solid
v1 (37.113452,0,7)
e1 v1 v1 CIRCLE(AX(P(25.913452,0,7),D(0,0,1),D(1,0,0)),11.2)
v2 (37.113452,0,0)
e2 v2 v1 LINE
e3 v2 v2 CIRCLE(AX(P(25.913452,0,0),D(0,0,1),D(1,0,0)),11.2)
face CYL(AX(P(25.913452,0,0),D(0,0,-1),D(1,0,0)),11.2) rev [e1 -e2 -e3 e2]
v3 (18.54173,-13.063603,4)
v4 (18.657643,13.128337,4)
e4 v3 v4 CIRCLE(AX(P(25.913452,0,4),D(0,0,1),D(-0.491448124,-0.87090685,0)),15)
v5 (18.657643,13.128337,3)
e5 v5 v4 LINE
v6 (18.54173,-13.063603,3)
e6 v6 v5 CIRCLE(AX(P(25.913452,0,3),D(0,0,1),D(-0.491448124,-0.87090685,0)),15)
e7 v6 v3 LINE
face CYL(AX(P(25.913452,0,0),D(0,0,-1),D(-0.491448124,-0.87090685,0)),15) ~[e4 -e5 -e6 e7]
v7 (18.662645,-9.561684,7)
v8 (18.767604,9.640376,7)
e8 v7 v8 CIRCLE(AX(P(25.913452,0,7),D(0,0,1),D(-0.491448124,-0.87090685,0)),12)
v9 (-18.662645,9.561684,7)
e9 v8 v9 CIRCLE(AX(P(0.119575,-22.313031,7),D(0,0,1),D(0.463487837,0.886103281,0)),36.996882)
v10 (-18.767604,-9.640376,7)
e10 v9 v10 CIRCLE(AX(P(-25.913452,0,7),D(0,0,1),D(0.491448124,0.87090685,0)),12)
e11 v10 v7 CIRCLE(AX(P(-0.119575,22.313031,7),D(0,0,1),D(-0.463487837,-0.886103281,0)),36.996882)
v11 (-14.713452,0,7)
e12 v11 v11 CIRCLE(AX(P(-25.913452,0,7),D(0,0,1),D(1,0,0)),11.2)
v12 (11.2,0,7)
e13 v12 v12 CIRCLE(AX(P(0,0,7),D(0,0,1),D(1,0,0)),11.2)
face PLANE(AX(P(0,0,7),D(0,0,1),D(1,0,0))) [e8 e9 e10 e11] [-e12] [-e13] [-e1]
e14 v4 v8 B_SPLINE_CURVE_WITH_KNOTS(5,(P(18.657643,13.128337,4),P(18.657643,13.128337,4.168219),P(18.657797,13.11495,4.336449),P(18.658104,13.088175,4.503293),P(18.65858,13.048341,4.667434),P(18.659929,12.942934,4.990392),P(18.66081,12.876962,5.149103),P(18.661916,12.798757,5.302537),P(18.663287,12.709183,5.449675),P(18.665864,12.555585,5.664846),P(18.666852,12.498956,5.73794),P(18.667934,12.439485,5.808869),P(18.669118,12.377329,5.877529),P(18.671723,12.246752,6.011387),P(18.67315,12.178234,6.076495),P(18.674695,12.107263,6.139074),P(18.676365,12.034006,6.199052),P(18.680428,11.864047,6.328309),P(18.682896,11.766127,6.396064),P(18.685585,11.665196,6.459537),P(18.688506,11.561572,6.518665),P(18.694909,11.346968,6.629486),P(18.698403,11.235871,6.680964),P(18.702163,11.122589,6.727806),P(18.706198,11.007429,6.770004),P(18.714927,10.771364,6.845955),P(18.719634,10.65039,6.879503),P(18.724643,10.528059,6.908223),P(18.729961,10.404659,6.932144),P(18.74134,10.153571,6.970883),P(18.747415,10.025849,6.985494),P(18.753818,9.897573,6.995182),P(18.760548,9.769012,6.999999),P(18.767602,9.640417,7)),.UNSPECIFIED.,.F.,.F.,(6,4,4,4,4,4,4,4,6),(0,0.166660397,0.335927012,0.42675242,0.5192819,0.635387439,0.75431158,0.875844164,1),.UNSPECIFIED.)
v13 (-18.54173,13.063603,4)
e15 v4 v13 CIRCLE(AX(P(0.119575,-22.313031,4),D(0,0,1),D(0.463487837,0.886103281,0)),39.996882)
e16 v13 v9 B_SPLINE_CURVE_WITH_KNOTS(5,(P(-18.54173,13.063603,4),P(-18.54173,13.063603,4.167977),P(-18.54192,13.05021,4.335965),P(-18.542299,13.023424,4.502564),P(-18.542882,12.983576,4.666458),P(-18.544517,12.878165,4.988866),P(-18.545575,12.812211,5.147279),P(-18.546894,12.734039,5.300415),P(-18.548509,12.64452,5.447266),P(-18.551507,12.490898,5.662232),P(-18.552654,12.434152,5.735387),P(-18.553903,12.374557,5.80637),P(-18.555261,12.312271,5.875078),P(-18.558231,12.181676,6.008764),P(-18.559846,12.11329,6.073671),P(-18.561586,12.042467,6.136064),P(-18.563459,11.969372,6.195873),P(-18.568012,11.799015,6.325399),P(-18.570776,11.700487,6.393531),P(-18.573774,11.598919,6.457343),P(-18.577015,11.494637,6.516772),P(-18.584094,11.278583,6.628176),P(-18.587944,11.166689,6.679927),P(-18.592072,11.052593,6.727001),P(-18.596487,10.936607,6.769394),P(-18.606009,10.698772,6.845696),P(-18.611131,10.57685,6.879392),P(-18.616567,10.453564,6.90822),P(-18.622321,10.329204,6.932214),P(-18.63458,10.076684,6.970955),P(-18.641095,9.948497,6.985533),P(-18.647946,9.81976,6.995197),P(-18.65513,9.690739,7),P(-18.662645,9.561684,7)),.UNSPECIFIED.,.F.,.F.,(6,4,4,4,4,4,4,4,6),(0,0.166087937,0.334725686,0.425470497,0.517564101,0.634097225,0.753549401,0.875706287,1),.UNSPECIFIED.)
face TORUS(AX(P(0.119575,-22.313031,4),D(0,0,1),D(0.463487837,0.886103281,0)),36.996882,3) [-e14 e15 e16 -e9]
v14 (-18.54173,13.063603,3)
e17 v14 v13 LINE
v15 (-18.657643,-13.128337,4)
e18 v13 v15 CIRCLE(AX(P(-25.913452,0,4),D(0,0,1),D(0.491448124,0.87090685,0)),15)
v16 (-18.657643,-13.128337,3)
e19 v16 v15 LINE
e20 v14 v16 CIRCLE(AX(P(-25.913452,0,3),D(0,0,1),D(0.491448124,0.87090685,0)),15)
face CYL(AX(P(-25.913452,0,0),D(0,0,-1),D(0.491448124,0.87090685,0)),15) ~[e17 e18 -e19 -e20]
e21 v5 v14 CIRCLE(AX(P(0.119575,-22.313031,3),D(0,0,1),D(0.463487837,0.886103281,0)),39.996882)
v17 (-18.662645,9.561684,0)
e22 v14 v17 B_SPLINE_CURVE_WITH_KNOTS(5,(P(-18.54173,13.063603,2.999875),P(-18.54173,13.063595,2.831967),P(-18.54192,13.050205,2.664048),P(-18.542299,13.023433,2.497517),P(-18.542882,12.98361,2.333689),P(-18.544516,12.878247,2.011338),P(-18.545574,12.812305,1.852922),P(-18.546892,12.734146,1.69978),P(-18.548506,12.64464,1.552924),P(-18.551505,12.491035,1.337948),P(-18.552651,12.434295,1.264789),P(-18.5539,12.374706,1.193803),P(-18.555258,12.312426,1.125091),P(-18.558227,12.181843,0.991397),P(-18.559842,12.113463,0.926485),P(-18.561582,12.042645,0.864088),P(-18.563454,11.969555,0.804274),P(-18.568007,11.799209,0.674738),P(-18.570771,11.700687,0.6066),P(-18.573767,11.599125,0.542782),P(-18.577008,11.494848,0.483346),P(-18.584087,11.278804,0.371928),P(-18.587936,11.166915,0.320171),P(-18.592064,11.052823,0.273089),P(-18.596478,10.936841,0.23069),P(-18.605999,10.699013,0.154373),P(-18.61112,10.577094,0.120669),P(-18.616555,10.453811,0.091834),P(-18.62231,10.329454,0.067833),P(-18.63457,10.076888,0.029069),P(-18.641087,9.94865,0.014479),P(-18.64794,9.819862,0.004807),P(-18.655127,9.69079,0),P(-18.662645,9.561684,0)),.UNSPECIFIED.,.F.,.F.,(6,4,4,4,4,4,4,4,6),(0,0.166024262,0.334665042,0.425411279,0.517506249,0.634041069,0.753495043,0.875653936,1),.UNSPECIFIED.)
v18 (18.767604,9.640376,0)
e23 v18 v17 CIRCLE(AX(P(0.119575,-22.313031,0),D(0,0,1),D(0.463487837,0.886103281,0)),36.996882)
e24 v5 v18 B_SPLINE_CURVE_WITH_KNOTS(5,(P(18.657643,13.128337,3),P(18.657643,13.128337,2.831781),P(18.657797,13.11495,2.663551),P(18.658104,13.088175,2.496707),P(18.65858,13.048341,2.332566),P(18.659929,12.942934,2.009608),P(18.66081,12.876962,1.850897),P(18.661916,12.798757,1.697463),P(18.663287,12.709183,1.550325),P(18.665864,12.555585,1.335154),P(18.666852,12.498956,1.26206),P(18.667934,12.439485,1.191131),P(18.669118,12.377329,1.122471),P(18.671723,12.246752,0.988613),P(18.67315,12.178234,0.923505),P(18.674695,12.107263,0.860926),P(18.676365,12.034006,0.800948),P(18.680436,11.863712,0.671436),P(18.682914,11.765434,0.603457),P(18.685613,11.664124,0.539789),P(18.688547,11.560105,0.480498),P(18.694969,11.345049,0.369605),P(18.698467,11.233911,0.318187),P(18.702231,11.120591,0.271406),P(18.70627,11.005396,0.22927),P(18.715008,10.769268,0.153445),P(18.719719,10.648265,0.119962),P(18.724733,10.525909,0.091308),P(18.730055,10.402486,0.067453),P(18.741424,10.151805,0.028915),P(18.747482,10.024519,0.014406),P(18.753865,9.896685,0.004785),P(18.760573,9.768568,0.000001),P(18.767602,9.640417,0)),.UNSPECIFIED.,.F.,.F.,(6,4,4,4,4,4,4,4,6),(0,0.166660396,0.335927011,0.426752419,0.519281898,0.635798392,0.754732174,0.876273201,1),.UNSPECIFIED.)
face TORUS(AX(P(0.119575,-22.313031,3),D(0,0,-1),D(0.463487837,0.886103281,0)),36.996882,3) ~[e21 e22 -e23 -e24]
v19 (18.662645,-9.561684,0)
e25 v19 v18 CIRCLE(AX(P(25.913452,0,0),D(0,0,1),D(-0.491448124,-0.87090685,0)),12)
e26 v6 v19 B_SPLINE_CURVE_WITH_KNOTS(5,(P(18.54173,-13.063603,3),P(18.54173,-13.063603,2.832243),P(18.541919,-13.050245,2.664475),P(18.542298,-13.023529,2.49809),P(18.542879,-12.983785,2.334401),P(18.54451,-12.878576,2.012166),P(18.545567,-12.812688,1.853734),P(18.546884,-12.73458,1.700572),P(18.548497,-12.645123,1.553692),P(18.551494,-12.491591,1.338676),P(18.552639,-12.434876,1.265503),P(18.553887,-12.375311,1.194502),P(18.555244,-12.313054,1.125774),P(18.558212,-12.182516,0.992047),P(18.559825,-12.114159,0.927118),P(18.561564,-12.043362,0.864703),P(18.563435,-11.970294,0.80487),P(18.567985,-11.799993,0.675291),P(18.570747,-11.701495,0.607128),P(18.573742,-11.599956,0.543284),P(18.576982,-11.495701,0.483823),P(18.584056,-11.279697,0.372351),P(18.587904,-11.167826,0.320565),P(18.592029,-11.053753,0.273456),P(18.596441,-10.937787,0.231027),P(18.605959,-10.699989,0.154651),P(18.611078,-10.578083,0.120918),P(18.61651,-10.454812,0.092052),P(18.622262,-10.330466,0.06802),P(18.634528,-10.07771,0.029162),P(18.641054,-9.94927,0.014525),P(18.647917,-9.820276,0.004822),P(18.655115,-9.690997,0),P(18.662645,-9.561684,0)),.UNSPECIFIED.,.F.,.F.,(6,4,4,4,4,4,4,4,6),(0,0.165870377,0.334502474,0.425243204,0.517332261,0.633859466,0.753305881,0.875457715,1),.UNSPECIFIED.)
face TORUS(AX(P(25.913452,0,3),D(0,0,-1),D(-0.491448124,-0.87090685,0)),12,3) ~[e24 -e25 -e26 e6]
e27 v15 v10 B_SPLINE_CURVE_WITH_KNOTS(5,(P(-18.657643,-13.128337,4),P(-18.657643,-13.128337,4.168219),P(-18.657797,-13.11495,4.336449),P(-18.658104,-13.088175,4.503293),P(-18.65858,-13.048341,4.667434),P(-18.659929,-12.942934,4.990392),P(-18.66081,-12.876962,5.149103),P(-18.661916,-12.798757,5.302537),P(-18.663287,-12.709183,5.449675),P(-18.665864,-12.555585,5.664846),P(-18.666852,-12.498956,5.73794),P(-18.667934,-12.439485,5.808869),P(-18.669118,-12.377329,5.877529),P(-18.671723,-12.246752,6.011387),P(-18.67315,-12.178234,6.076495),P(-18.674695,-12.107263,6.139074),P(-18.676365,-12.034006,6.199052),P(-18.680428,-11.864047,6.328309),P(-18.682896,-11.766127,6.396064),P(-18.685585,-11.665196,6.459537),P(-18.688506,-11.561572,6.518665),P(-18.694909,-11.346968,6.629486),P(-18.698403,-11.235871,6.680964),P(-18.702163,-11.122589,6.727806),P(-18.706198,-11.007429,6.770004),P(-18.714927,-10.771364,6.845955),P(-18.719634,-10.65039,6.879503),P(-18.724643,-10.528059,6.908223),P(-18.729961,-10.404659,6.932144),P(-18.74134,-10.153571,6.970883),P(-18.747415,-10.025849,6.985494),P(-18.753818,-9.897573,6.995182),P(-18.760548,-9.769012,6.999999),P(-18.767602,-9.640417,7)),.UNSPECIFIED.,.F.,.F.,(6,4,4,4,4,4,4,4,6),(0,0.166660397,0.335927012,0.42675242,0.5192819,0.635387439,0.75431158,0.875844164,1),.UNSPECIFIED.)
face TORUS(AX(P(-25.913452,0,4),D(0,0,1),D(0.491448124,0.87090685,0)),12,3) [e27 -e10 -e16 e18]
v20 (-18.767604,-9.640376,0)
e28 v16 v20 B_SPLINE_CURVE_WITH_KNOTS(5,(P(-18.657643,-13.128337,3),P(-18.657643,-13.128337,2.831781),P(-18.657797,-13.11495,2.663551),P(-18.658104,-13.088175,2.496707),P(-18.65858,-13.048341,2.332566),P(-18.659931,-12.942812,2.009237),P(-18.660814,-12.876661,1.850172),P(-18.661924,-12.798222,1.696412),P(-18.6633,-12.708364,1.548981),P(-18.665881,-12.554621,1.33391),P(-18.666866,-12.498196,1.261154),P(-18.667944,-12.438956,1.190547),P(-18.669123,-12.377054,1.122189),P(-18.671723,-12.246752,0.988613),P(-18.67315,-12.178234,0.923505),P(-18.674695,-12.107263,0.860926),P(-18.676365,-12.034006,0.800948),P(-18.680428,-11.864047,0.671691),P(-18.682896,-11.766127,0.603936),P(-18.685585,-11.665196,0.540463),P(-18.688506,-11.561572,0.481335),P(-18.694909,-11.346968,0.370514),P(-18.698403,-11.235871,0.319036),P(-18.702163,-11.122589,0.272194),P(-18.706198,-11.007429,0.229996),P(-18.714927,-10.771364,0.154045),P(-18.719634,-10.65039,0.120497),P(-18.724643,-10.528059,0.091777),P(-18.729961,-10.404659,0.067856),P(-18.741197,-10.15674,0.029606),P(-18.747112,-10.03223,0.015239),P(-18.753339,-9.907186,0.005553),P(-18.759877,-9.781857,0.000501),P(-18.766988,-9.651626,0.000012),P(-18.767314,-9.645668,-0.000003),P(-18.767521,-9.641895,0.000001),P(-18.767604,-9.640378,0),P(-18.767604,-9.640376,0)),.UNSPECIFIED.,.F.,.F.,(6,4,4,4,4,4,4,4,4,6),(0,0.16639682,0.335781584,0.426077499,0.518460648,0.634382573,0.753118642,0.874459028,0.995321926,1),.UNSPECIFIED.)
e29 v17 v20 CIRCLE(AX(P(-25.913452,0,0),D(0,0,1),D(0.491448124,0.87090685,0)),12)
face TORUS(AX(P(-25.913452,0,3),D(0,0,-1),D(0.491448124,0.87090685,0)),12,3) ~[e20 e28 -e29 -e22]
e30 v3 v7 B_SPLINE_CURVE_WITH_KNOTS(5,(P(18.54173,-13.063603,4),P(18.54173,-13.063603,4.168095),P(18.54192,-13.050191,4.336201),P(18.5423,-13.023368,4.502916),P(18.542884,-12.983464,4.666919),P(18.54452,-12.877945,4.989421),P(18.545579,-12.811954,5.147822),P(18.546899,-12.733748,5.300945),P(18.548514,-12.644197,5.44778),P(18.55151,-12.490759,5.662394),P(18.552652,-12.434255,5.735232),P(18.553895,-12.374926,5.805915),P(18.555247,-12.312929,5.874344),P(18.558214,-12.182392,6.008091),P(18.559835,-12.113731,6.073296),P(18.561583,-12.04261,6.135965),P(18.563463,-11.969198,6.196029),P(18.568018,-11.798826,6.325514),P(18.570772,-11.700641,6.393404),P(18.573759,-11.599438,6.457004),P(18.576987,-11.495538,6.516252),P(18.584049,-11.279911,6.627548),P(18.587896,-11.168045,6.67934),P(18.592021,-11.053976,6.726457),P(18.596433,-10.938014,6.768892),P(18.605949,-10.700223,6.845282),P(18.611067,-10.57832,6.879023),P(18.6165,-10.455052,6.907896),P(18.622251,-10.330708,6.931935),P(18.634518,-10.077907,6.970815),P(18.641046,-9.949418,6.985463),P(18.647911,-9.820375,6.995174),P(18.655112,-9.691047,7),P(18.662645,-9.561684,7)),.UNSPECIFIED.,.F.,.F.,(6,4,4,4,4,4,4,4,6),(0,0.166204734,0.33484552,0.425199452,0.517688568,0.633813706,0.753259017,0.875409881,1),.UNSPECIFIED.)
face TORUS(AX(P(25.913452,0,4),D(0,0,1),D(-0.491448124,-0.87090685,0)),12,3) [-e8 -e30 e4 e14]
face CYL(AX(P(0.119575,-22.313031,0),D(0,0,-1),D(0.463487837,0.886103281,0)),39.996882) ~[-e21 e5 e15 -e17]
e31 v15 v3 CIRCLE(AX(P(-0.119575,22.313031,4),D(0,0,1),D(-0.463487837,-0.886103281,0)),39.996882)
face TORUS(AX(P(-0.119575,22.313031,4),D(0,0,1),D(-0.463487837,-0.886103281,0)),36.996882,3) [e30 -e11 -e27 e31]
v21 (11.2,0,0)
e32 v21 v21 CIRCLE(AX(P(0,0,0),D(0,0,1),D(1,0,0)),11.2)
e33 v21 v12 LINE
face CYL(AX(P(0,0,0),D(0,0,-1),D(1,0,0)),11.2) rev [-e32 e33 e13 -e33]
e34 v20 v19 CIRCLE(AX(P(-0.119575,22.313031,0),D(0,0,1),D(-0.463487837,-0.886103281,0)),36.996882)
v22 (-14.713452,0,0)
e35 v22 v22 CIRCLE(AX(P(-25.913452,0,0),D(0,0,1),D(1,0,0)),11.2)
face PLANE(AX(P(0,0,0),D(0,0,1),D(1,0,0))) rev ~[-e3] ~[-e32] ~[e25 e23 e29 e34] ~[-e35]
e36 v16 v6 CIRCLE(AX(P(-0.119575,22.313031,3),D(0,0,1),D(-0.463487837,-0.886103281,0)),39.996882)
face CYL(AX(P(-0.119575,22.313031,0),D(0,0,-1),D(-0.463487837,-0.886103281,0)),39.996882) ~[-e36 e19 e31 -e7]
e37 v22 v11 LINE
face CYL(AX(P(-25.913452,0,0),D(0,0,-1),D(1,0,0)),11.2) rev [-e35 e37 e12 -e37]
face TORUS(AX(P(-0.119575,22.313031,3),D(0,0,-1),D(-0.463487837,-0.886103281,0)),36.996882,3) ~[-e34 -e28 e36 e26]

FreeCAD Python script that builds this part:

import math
import FreeCAD as App
import Part
import Sketcher
Q = App.Units.Quantity


def edges_at(feature, points):
    """Names of the edges that pass closest to the given points."""
    edges = feature.Shape.Edges
    near = lambda p: min(range(len(edges)), key=lambda i: edges[i].distToShape(Part.Vertex(*p))[0])
    return sorted({f"Edge{near(p) + 1}" for p in points})

doc = App.newDocument("Part")
params = doc.addObject("Spreadsheet::Sheet", "Params")
for row, (alias, value) in enumerate([
    ("sketch1_radius", "15 mm"),
    ("sketch1_diameter", "22.4 mm"),
    ("pad1_length", "7 mm"),
    ("fillet_radius", "3 mm"),
], start=1):
    params.set(f"A{row}", alias)
    params.set(f"B{row}", "=" + value)
    params.setAlias(f"B{row}", alias)

body = doc.addObject("PartDesign::Body", "Body")

sketch1 = doc.addObject("Sketcher::SketchObject", "Sketch")
body.addObject(sketch1)
sketch1.AttachmentSupport = (doc.XY_Plane, [""])
sketch1.MapMode = "FlatFace"
sketch1.addGeometry([
    Part.ArcOfCircle(Part.Circle(App.Vector(0, -22, 0), App.Vector(0, 0, 1), 40), math.radians(62), math.radians(118)),
    Part.ArcOfCircle(Part.Circle(App.Vector(-26, 0, 0), App.Vector(0, 0, 1), 15), math.radians(61), math.radians(299)),
    Part.ArcOfCircle(Part.Circle(App.Vector(0, 22, 0), App.Vector(0, 0, 1), 40), math.radians(-118), math.radians(-62)),
    Part.ArcOfCircle(Part.Circle(App.Vector(26, 0, 0), App.Vector(0, 0, 1), 15), math.radians(-119), math.radians(119)),
    Part.Circle(App.Vector(-26, 0, 0), App.Vector(0, 0, 1), 11),
    Part.Circle(App.Vector(0, 0, 0), App.Vector(0, 0, 1), 11),
    Part.Circle(App.Vector(26, 0, 0), App.Vector(0, 0, 1), 11),
], False)
sketch1.addConstraint([
    Sketcher.Constraint("Coincident", 0, 2, 1, 1),
    Sketcher.Constraint("Coincident", 1, 2, 2, 1),
    Sketcher.Constraint("Coincident", 2, 2, 3, 1),
    Sketcher.Constraint("Coincident", 3, 2, 0, 1),
    Sketcher.Constraint("Coincident", 5, 3, -1, 1),
    Sketcher.Constraint("Coincident", 4, 3, 1, 3),
    Sketcher.Constraint("Coincident", 6, 3, 3, 3),
    Sketcher.Constraint("Equal", 0, 2),
    Sketcher.Constraint("Equal", 1, 3),
    Sketcher.Constraint("Equal", 4, 5),
    Sketcher.Constraint("Equal", 5, 6),
    Sketcher.Constraint("Symmetric", 0, 3, 2, 3, -1, 1),
    Sketcher.Constraint("Symmetric", 1, 3, 3, 3, -1, 1),
    Sketcher.Constraint("PointOnObject", 1, 3, -1),
    Sketcher.Constraint("Radius", 1, Q("15 mm")),
    Sketcher.Constraint("Diameter", 4, Q("22.4 mm")),
    Sketcher.Constraint("Radius", 0, Q("39.996882 mm")),
    Sketcher.Constraint("DistanceY", 0, 3, -1, 1, Q("22.313031 mm")),
    Sketcher.Constraint("DistanceX", 1, 3, -1, 1, Q("25.913452 mm")),
    Sketcher.Constraint("DistanceX", 0, 2, -1, 1, Q("18.54173 mm")),
])
sketch1.setExpression("Constraints[14]", "Params.sketch1_radius")
sketch1.setExpression("Constraints[15]", "Params.sketch1_diameter")
pad1 = doc.addObject("PartDesign::Pad", "Pad")
body.addObject(pad1)
pad1.Profile = sketch1
pad1.setExpression("Length", "Params.pad1_length")
doc.recompute()

fillet = doc.addObject("PartDesign::Fillet", "Fillet")
body.addObject(fillet)
fillet.Base = (pad1, edges_at(pad1, [
    (0.05, 17.684, 7),
    (40.913, -0.066, 7),
    (-0.05, -17.684, 7),
    (-40.913, 0.066, 0),
    (0.05, 17.684, 0),
    (40.913, -0.066, 0),
    (-0.05, -17.684, 0),
    (-40.913, 0.066, 7),
]))
fillet.setExpression("Radius", "Params.fillet_radius")

doc.recompute()
